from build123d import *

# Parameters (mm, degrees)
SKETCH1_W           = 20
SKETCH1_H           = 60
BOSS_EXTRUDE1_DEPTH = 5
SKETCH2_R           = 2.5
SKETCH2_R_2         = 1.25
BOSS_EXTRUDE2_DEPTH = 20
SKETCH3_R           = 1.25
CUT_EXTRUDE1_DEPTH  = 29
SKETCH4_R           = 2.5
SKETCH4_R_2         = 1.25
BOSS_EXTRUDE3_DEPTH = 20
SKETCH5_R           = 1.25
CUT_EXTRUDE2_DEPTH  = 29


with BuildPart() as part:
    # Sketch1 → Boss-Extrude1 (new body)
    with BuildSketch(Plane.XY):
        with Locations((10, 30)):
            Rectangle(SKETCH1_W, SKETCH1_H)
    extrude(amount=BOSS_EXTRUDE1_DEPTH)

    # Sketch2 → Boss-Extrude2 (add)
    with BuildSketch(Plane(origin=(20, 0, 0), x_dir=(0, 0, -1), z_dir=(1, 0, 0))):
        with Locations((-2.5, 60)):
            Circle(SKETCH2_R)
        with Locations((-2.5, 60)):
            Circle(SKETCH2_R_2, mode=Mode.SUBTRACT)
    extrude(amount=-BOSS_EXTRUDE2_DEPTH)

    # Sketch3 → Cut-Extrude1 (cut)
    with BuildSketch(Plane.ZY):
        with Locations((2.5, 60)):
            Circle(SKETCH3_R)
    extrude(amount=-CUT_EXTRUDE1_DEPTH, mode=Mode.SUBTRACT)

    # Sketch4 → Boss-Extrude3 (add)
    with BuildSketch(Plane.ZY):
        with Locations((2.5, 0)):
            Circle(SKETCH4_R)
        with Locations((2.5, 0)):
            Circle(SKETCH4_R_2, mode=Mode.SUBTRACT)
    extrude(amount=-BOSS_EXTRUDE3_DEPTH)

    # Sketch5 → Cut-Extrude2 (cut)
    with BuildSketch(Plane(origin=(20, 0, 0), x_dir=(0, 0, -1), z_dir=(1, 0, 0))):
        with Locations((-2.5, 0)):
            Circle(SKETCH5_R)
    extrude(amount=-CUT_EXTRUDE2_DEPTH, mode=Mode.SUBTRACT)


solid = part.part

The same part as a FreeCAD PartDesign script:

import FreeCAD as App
import Part
import Sketcher
from FreeCAD import Vector
Q = App.Units.Quantity


def add_polygon(sketch, points):
    """Adds a closed chain of lines whose ends are joined by coincident constraints."""
    first, n = sketch.GeometryCount, len(points)
    for a, b in zip(points, points[1:] + points[:1]):
        sketch.addGeometry(Part.LineSegment(App.Vector(*a, 0), App.Vector(*b, 0)), False)
    for i in range(n):
        sketch.addConstraint(Sketcher.Constraint("Coincident", first + i, 2, first + (i + 1) % n, 1))

doc = App.newDocument("Part")
body = doc.addObject("PartDesign::Body", "Body")

sketch1 = body.newObject("Sketcher::SketchObject", "Sketch")
sketch1.AttachmentSupport = (doc.getObject("XY_Plane"), [""])
sketch1.MapMode = "FlatFace"
add_polygon(sketch1, [(0, 60), (0, 0), (20, 0), (20, 60)])
sketch1.addConstraint([
    Sketcher.Constraint("Vertical", 0),
    Sketcher.Constraint("Horizontal", 1),
    Sketcher.Constraint("Vertical", 2),
    Sketcher.Constraint("Horizontal", 3),
    Sketcher.Constraint("Coincident", 0, 2, -1, 1),
    Sketcher.Constraint("DistanceX", 1, 1, 1, 2, Q("20 mm")),
    Sketcher.Constraint("DistanceY", 0, 2, 0, 1, Q("60 mm")),
])
pad1 = body.newObject("PartDesign::Pad", "Pad")
pad1.Profile = sketch1
pad1.Length = 5

sketch2 = body.newObject("Sketcher::SketchObject", "Sketch001")
sketch2.AttachmentSupport = (doc.getObject("YZ_Plane"), [""])
sketch2.MapMode = "FlatFace"
sketch2.AttachmentOffset = App.Placement(Vector(0, 0, 20), App.Rotation())
sketch2.addGeometry([
    Part.Circle(Vector(60, 2.5, 0), Vector(0, 0, 1), 2.5),
    Part.Circle(Vector(60, 2.5, 0), Vector(0, 0, 1), 1.2),
], False)
sketch2.addConstraint([
    Sketcher.Constraint("Coincident", 1, 3, 0, 3),
    Sketcher.Constraint("Diameter", 0, Q("5 mm")),
    Sketcher.Constraint("Diameter", 1, Q("2.5 mm")),
    Sketcher.Constraint("DistanceX", -1, 1, 0, 3, Q("60 mm")),
    Sketcher.Constraint("DistanceY", -1, 1, 0, 3, Q("2.5 mm")),
])
pad2 = body.newObject("PartDesign::Pad", "Pad001")
pad2.Profile = sketch2
pad2.Length = 20
pad2.Reversed = True

sketch3 = body.newObject("Sketcher::SketchObject", "Sketch002")
sketch3.AttachmentSupport = (doc.getObject("YZ_Plane"), [""])
sketch3.MapMode = "FlatFace"
sketch3.addGeometry(Part.Circle(Vector(60, 2.5, 0), Vector(0, 0, 1), 1.2), False)
sketch3.addConstraint([
    Sketcher.Constraint("Diameter", 0, Q("2.5 mm")),
    Sketcher.Constraint("DistanceX", -1, 1, 0, 3, Q("60 mm")),
    Sketcher.Constraint("DistanceY", -1, 1, 0, 3, Q("2.5 mm")),
])
pocket1 = body.newObject("PartDesign::Pocket", "Pocket")
pocket1.Profile = sketch3
pocket1.Length = 29
pocket1.Reversed = True

sketch4 = body.newObject("Sketcher::SketchObject", "Sketch003")
sketch4.AttachmentSupport = (doc.getObject("YZ_Plane"), [""])
sketch4.MapMode = "FlatFace"
sketch4.addGeometry([
    Part.Circle(Vector(0, 2.5, 0), Vector(0, 0, 1), 2.5),
    Part.Circle(Vector(0, 2.5, 0), Vector(0, 0, 1), 1.2),
], False)
sketch4.addConstraint([
    Sketcher.Constraint("Coincident", 1, 3, 0, 3),
    Sketcher.Constraint("PointOnObject", 0, 3, -2),
    Sketcher.Constraint("Diameter", 0, Q("5 mm")),
    Sketcher.Constraint("Diameter", 1, Q("2.5 mm")),
    Sketcher.Constraint("DistanceY", -1, 1, 0, 3, Q("2.5 mm")),
])
pad3 = body.newObject("PartDesign::Pad", "Pad002")
pad3.Profile = sketch4
pad3.Length = 20

sketch5 = body.newObject("Sketcher::SketchObject", "Sketch004")
sketch5.AttachmentSupport = (doc.getObject("YZ_Plane"), [""])
sketch5.MapMode = "FlatFace"
sketch5.AttachmentOffset = App.Placement(Vector(0, 0, 20), App.Rotation())
sketch5.addGeometry(Part.Circle(Vector(0, 2.5, 0), Vector(0, 0, 1), 1.2), False)
sketch5.addConstraint([
    Sketcher.Constraint("PointOnObject", 0, 3, -2),
    Sketcher.Constraint("Diameter", 0, Q("2.5 mm")),
    Sketcher.Constraint("DistanceY", -1, 1, 0, 3, Q("2.5 mm")),
])
pocket2 = body.newObject("PartDesign::Pocket", "Pocket001")
pocket2.Profile = sketch5
pocket2.Length = 29

doc.recompute()
